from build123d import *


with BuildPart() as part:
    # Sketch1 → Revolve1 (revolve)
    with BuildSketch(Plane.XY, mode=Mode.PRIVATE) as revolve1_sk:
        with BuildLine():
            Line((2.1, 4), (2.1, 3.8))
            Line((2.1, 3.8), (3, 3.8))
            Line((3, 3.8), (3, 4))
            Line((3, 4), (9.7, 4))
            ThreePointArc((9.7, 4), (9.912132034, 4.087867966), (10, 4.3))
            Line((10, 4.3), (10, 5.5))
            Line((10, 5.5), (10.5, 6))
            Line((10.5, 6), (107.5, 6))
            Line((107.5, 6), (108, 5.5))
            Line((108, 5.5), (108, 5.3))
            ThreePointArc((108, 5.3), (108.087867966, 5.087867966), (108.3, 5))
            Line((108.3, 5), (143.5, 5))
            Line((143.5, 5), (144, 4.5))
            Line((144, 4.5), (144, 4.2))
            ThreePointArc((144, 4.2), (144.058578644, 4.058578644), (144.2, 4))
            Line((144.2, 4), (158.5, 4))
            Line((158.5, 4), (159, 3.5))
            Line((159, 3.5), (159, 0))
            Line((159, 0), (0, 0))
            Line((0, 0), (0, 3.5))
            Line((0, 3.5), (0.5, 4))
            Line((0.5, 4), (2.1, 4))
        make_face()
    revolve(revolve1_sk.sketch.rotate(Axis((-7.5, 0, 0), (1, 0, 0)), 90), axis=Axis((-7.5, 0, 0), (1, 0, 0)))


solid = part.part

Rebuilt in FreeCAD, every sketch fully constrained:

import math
import FreeCAD as App
import Part
import Sketcher

V = App.Vector

doc = App.newDocument("Part")
params = doc.addObject("Spreadsheet::Sheet", "Params")
for row, (alias, value) in enumerate([
    ("sketch1_radius", "0.2 mm"),
    ("sketch1_radius2", "0.3 mm"),
    ("sketch1_width", "159 mm"),
    ("sketch1_width2", "97 mm"),
    ("sketch1_width3", "1.6 mm"),
    ("revolution_angle", "360 deg"),
], start=1):
    params.set(f"A{row}", alias)
    params.set(f"B{row}", "=" + value)
    params.setAlias(f"B{row}", alias)

body = doc.addObject("PartDesign::Body", "Body")

sketch1 = body.newObject("Sketcher::SketchObject", "Sketch")
sketch1.AttachmentSupport = (doc.getObject("XY_Plane"), [""])
sketch1.MapMode = "FlatFace"
sketch1.addGeometry([
    Part.LineSegment(V(2.1, 3.8, 0), V(2.1, 4, 0)),
    Part.LineSegment(V(2.1, 4, 0), V(0.5, 4, 0)),
    Part.LineSegment(V(0.5, 4, 0), V(0, 3.5, 0)),
    Part.LineSegment(V(0, 3.5, 0), V(0, 0, 0)),
    Part.LineSegment(V(0, 0, 0), V(159, 0, 0)),
    Part.LineSegment(V(159, 0, 0), V(159, 3.5, 0)),
    Part.LineSegment(V(159, 3.5, 0), V(158.5, 4, 0)),
    Part.LineSegment(V(158.5, 4, 0), V(144.2, 4, 0)),
    Part.ArcOfCircle(Part.Circle(V(144.2, 4.2, 0), V(0, 0, 1), 0.2), math.radians(-180), math.radians(-90)),
    Part.LineSegment(V(144, 4.2, 0), V(144, 4.5, 0)),
    Part.LineSegment(V(144, 4.5, 0), V(143.5, 5, 0)),
    Part.LineSegment(V(143.5, 5, 0), V(108.3, 5, 0)),
    Part.ArcOfCircle(Part.Circle(V(108.3, 5.3, 0), V(0, 0, 1), 0.3), math.radians(-180), math.radians(-90)),
    Part.LineSegment(V(108, 5.3, 0), V(108, 5.5, 0)),
    Part.LineSegment(V(108, 5.5, 0), V(107.5, 6, 0)),
    Part.LineSegment(V(107.5, 6, 0), V(10.5, 6, 0)),
    Part.LineSegment(V(10.5, 6, 0), V(10, 5.5, 0)),
    Part.LineSegment(V(10, 5.5, 0), V(10, 4.3, 0)),
    Part.ArcOfCircle(Part.Circle(V(9.7, 4.3, 0), V(0, 0, 1), 0.3), math.radians(-90), math.radians(0)),
    Part.LineSegment(V(9.7, 4, 0), V(3, 4, 0)),
    Part.LineSegment(V(3, 4, 0), V(3, 3.8, 0)),
    Part.LineSegment(V(3, 3.8, 0), V(2.1, 3.8, 0)),
], False)
sketch1.addConstraint([
    Sketcher.Constraint("Coincident", 0, 2, 1, 1),
    Sketcher.Constraint("Coincident", 1, 2, 2, 1),
    Sketcher.Constraint("Coincident", 2, 2, 3, 1),
    Sketcher.Constraint("Coincident", 3, 2, 4, 1),
    Sketcher.Constraint("Coincident", 4, 2, 5, 1),
    Sketcher.Constraint("Coincident", 5, 2, 6, 1),
    Sketcher.Constraint("Coincident", 6, 2, 7, 1),
    Sketcher.Constraint("Tangent", 7, 2, 8, 2),
    Sketcher.Constraint("Tangent", 8, 1, 9, 1),
    Sketcher.Constraint("Coincident", 9, 2, 10, 1),
    Sketcher.Constraint("Coincident", 10, 2, 11, 1),
    Sketcher.Constraint("Tangent", 11, 2, 12, 2),
    Sketcher.Constraint("Tangent", 12, 1, 13, 1),
    Sketcher.Constraint("Coincident", 13, 2, 14, 1),
    Sketcher.Constraint("Coincident", 14, 2, 15, 1),
    Sketcher.Constraint("Coincident", 15, 2, 16, 1),
    Sketcher.Constraint("Coincident", 16, 2, 17, 1),
    Sketcher.Constraint("Tangent", 17, 2, 18, 2),
    Sketcher.Constraint("Tangent", 18, 1, 19, 1),
    Sketcher.Constraint("Coincident", 19, 2, 20, 1),
    Sketcher.Constraint("Coincident", 20, 2, 21, 1),
    Sketcher.Constraint("Coincident", 21, 2, 0, 1),
    Sketcher.Constraint("Vertical", 0),
    Sketcher.Constraint("Horizontal", 1),
    Sketcher.Constraint("Vertical", 3),
    Sketcher.Constraint("Horizontal", 4),
    Sketcher.Constraint("Vertical", 5),
    Sketcher.Constraint("Horizontal", 7),
    Sketcher.Constraint("Vertical", 9),
    Sketcher.Constraint("Horizontal", 11),
    Sketcher.Constraint("Vertical", 13),
    Sketcher.Constraint("Horizontal", 15),
    Sketcher.Constraint("Vertical", 17),
    Sketcher.Constraint("Horizontal", 19),
    Sketcher.Constraint("Vertical", 20),
    Sketcher.Constraint("Horizontal", 21),
    Sketcher.Constraint("Coincident", 3, 2, -1, 1),
    Sketcher.Constraint("Equal", 12, 18),
    Sketcher.Constraint("Perpendicular", 2, 6),
    Sketcher.Constraint("Parallel", 6, 10),
    Sketcher.Constraint("Parallel", 10, 14),
    Sketcher.Constraint("Perpendicular", 14, 16),
    Sketcher.Constraint("Horizontal", 2, 2, 5, 2),
    Sketcher.Constraint("Horizontal", 1, 2, 6, 2),
    Sketcher.Constraint("Horizontal", 13, 2, 16, 2),
    Sketcher.Constraint("Horizontal", 7, 2, 18, 1),
    Sketcher.Constraint("Equal", 0, 13),
    Sketcher.Constraint("Equal", 2, 6),
    Sketcher.Constraint("Equal", 6, 10),
    Sketcher.Constraint("Equal", 10, 14),
    Sketcher.Constraint("Radius", 8, 0.2),
    Sketcher.Constraint("Radius", 12, 0.3),
    Sketcher.Constraint("DistanceX", 4, 1, 4, 2, 159.0),
    Sketcher.Constraint("DistanceX", 15, 2, 15, 1, 97.0),
    Sketcher.Constraint("DistanceX", 1, 2, 1, 1, 1.6),
    Sketcher.Constraint("DistanceX", 7, 2, 7, 1, 14.3),
    Sketcher.Constraint("DistanceX", 11, 2, 11, 1, 35.2),
    Sketcher.Constraint("DistanceX", 19, 2, 19, 1, 6.7),
    Sketcher.Constraint("DistanceX", 21, 2, 21, 1, 0.9),
    Sketcher.Constraint("DistanceY", 0, 1, 0, 2, 0.2),
    Sketcher.Constraint("DistanceY", 3, 2, 3, 1, 3.5),
    Sketcher.Constraint("DistanceY", 9, 1, 9, 2, 0.3),
])
sketch1.setExpression("Constraints[50]", "Params.sketch1_radius")
sketch1.setExpression("Constraints[51]", "Params.sketch1_radius2")
sketch1.setExpression("Constraints[52]", "Params.sketch1_width")
sketch1.setExpression("Constraints[53]", "Params.sketch1_width2")
sketch1.setExpression("Constraints[54]", "Params.sketch1_width3")
revolution = body.newObject("PartDesign::Revolution", "Revolution")
revolution.Profile = sketch1
revolution.ReferenceAxis = (sketch1, ["H_Axis"])
revolution.setExpression("Angle", "Params.revolution_angle")

doc.recompute()
